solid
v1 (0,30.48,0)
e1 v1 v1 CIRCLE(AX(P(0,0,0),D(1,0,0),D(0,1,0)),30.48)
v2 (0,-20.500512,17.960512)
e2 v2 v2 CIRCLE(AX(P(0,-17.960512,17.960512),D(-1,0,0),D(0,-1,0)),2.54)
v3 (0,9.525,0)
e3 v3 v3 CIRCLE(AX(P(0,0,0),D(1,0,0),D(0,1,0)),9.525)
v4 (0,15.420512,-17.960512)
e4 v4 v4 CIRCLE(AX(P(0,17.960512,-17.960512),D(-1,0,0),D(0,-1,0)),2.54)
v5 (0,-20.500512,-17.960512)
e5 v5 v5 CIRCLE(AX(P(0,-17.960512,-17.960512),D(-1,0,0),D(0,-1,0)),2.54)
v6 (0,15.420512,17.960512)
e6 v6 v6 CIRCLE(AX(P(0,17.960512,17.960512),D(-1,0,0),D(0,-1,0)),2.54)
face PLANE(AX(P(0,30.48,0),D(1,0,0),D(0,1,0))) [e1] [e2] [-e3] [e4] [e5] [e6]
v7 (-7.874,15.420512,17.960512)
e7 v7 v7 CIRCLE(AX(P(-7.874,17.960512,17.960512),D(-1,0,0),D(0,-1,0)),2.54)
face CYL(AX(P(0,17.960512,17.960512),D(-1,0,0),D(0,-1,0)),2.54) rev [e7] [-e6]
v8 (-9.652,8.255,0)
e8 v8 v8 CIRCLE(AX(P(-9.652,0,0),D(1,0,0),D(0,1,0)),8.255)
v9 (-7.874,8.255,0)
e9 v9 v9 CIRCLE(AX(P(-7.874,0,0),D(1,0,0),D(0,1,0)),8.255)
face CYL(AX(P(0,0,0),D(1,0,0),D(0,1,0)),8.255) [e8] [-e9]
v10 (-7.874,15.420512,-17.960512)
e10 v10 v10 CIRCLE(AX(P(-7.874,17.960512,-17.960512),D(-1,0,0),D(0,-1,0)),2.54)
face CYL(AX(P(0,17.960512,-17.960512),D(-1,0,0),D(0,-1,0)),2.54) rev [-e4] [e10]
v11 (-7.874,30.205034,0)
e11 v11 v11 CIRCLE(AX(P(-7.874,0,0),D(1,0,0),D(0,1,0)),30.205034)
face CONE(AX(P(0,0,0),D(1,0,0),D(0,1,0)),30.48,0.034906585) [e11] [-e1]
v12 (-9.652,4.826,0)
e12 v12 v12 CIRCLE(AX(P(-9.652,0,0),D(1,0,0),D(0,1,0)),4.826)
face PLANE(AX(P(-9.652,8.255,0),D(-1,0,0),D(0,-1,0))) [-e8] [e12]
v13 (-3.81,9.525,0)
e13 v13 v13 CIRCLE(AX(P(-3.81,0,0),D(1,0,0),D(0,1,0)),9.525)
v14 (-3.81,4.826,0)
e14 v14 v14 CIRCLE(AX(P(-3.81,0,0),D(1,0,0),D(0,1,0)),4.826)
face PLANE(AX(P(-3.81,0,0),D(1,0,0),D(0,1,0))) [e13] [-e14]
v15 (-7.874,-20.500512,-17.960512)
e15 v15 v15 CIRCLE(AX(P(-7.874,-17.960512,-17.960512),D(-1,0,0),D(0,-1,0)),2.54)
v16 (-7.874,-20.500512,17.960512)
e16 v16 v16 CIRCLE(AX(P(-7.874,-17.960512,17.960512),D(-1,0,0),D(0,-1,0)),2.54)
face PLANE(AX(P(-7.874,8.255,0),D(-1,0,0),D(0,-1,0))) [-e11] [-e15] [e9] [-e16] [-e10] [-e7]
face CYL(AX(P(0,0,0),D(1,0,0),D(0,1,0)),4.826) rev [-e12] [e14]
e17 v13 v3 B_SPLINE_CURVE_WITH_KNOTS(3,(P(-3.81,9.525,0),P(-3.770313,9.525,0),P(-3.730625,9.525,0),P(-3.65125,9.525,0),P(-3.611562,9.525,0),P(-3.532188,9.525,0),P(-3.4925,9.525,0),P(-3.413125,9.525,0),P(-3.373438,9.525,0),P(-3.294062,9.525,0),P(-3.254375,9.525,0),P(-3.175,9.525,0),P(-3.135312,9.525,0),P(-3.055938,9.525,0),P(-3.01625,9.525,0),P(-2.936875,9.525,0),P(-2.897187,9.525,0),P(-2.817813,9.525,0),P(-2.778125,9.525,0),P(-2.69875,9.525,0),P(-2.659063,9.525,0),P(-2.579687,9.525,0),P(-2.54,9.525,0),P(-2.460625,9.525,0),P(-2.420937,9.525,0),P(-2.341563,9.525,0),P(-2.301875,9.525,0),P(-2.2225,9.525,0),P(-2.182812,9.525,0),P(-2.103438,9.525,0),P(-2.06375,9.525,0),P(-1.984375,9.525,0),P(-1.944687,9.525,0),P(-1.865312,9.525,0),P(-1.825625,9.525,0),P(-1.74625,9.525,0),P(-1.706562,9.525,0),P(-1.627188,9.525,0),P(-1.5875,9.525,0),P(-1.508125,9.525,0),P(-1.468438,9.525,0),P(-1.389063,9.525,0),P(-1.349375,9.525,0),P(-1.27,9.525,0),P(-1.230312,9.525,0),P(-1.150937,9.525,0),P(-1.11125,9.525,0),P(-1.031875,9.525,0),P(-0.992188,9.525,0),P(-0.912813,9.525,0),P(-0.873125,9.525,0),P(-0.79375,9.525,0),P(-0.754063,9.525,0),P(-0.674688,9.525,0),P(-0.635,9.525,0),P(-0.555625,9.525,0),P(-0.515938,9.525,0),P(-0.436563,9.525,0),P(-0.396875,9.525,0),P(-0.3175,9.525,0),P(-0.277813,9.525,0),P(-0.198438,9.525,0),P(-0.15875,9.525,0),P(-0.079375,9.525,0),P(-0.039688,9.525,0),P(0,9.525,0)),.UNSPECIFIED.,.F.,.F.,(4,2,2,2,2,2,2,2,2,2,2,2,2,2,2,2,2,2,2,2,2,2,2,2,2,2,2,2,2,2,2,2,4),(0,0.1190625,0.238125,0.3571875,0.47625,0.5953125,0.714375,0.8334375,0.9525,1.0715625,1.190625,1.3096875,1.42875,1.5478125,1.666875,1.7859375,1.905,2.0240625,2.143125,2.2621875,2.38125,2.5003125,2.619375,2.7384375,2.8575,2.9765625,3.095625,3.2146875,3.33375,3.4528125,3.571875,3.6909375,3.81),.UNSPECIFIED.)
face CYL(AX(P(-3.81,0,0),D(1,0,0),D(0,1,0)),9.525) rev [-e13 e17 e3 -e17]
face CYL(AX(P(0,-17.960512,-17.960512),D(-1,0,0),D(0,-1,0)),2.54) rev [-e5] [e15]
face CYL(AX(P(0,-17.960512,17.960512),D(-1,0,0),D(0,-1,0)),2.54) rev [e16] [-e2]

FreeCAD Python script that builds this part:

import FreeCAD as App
import Part
import Sketcher

V = App.Vector
Q = App.Units.Quantity

doc = App.newDocument("Part")
body = doc.addObject("PartDesign::Body", "Body")

# Sketch on XY plane
sketch1 = body.newObject("Sketcher::SketchObject", "Sketch")
sketch1.AttachmentSupport = (doc.getObject("XY_Plane"), [""])
sketch1.MapMode = "FlatFace"
sketch1.addGeometry([
    Part.LineSegment(V(-7.9, 30.2, 0), V(-7.9, 8.3, 0)),  # 0
    Part.LineSegment(V(-7.9, 8.3, 0), V(-9.7, 8.3, 0)),  # 1
    Part.LineSegment(V(-9.7, 8.3, 0), V(-9.7, 4.8, 0)),  # 2
    Part.LineSegment(V(-9.7, 4.8, 0), V(0, 4.8, 0)),  # 3
    Part.LineSegment(V(0, 4.8, 0), V(0, 30.5, 0)),  # 4
    Part.LineSegment(V(0, 30.5, 0), V(-7.9, 30.2, 0)),  # 5
], False)
sketch1.addConstraint([
    Sketcher.Constraint("Coincident", 0, 2, 1, 1),
    Sketcher.Constraint("Coincident", 1, 2, 2, 1),
    Sketcher.Constraint("Coincident", 2, 2, 3, 1),
    Sketcher.Constraint("Coincident", 3, 2, 4, 1),
    Sketcher.Constraint("Coincident", 4, 2, 5, 1),
    Sketcher.Constraint("Coincident", 5, 2, 0, 1),
    Sketcher.Constraint("Vertical", 0),
    Sketcher.Constraint("Horizontal", 1),
    Sketcher.Constraint("Vertical", 2),
    Sketcher.Constraint("Horizontal", 3),
    Sketcher.Constraint("Vertical", 4),
    Sketcher.Constraint("PointOnObject", 3, 2, -2),
    Sketcher.Constraint("Angle", 5, Q("-178 deg")),
    Sketcher.Constraint("DistanceX", 1, 2, 1, 1, Q("0.07 in")),
    Sketcher.Constraint("DistanceX", 3, 1, 3, 2, Q("0.38 in")),
    Sketcher.Constraint("DistanceY", 4, 1, 4, 2, Q("1.01 in")),
    Sketcher.Constraint("DistanceY", -1, 1, 4, 2, Q("1.2 in")),
    Sketcher.Constraint("DistanceY", 2, 2, 2, 1, Q("0.135 in")),
])
revolution = body.newObject("PartDesign::Revolution", "Revolution")
revolution.Profile = sketch1
revolution.ReferenceAxis = (sketch1, ["H_Axis"])
revolution.Angle = 360

# Sketch on YZ plane
sketch2 = body.newObject("Sketcher::SketchObject", "Sketch001")
sketch2.AttachmentSupport = (doc.getObject("YZ_Plane"), [""])
sketch2.MapMode = "FlatFace"
sketch2.AttachmentOffset = App.Placement(V(0, 0, -0.31 * 25.4), App.Rotation())
sketch2.addGeometry([
    Part.Circle(V(18, -18, 0), V(0, 0, 1), 2.5),
    Part.Circle(V(18, 18, 0), V(0, 0, 1), 2.5),
    Part.Circle(V(-18, 18, 0), V(0, 0, 1), 2.5),
    Part.Circle(V(-18, -18, 0), V(0, 0, 1), 2.5),
], False)
sketch2.addConstraint([
    Sketcher.Constraint("Equal", 0, 1),
    Sketcher.Constraint("Equal", 1, 2),
    Sketcher.Constraint("Equal", 2, 3),
    Sketcher.Constraint("Symmetric", 0, 3, 2, 3, -1, 1),
    Sketcher.Constraint("Symmetric", 1, 3, 3, 3, -1, 1),
    Sketcher.Constraint("Symmetric", 1, 3, 2, 3, -2),
    Sketcher.Constraint("Diameter", 0, Q("0.2 in")),
    Sketcher.Constraint("DistanceX", -1, 1, 0, 3, 17.960512),
    Sketcher.Constraint("DistanceY", 0, 3, -1, 1, 17.960512),
])
pocket1 = body.newObject("PartDesign::Pocket", "Pocket")
pocket1.Profile = sketch2
pocket1.Type = "ThroughAll"
pocket1.Reversed = True

# Sketch on YZ plane
sketch3 = body.newObject("Sketcher::SketchObject", "Sketch002")
sketch3.AttachmentSupport = (doc.getObject("YZ_Plane"), [""])
sketch3.MapMode = "FlatFace"
sketch3.addGeometry(Part.Circle(V(0, 0, 0), V(0, 0, 1), 10), False)
sketch3.addConstraint([
    Sketcher.Constraint("Coincident", 0, 3, -1, 1),
    Sketcher.Constraint("Diameter", 0, Q("0.75 in")),
])
pocket2 = body.newObject("PartDesign::Pocket", "Pocket001")
pocket2.Profile = sketch3
pocket2.Length = Q("0.15 in")

doc.recompute()
